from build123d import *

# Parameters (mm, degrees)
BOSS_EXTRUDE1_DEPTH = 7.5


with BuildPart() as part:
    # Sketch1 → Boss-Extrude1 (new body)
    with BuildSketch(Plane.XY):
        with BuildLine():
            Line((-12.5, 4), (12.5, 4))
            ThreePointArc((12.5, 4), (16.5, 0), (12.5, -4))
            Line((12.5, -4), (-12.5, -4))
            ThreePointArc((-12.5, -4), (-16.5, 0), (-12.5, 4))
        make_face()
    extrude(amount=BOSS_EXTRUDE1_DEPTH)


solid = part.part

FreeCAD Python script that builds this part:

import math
import FreeCAD as App
import Part
import Sketcher
from FreeCAD import Vector
Q = App.Units.Quantity

doc = App.newDocument("Part")
body = doc.addObject("PartDesign::Body", "Body")

# Sketch on XY plane
sketch1 = doc.addObject("Sketcher::SketchObject", "Sketch")
body.addObject(sketch1)
sketch1.AttachmentSupport = (doc.XY_Plane, [""])
sketch1.MapMode = "FlatFace"
sketch1.addGeometry([
    Part.LineSegment(Vector(12.5, 4, 0), Vector(-12.5, 4, 0)),
    Part.ArcOfCircle(Part.Circle(Vector(-12.5, 0, 0), Vector(0, 0, 1), 4), math.radians(90), math.radians(270)),
    Part.LineSegment(Vector(-12.5, -4, 0), Vector(12.5, -4, 0)),
    Part.ArcOfCircle(Part.Circle(Vector(12.5, 0, 0), Vector(0, 0, 1), 4), math.radians(-90), math.radians(90)),
], False)
sketch1.addConstraint([
    Sketcher.Constraint("Tangent", 0, 2, 1, 1),
    Sketcher.Constraint("Tangent", 1, 2, 2, 1),
    Sketcher.Constraint("Tangent", 2, 2, 3, 1),
    Sketcher.Constraint("Tangent", 3, 2, 0, 1),
    Sketcher.Constraint("Horizontal", 0),
    Sketcher.Constraint("Horizontal", 2),
    Sketcher.Constraint("Symmetric", 1, 3, 3, 3, -1, 1),
    Sketcher.Constraint("Radius", 1, Q("4 mm")),
    Sketcher.Constraint("DistanceX", 0, 2, 0, 1, Q("25 mm")),
])
pad1 = doc.addObject("PartDesign::Pad", "Pad")
body.addObject(pad1)
pad1.Profile = sketch1
pad1.Length = 7.5

doc.recompute()
